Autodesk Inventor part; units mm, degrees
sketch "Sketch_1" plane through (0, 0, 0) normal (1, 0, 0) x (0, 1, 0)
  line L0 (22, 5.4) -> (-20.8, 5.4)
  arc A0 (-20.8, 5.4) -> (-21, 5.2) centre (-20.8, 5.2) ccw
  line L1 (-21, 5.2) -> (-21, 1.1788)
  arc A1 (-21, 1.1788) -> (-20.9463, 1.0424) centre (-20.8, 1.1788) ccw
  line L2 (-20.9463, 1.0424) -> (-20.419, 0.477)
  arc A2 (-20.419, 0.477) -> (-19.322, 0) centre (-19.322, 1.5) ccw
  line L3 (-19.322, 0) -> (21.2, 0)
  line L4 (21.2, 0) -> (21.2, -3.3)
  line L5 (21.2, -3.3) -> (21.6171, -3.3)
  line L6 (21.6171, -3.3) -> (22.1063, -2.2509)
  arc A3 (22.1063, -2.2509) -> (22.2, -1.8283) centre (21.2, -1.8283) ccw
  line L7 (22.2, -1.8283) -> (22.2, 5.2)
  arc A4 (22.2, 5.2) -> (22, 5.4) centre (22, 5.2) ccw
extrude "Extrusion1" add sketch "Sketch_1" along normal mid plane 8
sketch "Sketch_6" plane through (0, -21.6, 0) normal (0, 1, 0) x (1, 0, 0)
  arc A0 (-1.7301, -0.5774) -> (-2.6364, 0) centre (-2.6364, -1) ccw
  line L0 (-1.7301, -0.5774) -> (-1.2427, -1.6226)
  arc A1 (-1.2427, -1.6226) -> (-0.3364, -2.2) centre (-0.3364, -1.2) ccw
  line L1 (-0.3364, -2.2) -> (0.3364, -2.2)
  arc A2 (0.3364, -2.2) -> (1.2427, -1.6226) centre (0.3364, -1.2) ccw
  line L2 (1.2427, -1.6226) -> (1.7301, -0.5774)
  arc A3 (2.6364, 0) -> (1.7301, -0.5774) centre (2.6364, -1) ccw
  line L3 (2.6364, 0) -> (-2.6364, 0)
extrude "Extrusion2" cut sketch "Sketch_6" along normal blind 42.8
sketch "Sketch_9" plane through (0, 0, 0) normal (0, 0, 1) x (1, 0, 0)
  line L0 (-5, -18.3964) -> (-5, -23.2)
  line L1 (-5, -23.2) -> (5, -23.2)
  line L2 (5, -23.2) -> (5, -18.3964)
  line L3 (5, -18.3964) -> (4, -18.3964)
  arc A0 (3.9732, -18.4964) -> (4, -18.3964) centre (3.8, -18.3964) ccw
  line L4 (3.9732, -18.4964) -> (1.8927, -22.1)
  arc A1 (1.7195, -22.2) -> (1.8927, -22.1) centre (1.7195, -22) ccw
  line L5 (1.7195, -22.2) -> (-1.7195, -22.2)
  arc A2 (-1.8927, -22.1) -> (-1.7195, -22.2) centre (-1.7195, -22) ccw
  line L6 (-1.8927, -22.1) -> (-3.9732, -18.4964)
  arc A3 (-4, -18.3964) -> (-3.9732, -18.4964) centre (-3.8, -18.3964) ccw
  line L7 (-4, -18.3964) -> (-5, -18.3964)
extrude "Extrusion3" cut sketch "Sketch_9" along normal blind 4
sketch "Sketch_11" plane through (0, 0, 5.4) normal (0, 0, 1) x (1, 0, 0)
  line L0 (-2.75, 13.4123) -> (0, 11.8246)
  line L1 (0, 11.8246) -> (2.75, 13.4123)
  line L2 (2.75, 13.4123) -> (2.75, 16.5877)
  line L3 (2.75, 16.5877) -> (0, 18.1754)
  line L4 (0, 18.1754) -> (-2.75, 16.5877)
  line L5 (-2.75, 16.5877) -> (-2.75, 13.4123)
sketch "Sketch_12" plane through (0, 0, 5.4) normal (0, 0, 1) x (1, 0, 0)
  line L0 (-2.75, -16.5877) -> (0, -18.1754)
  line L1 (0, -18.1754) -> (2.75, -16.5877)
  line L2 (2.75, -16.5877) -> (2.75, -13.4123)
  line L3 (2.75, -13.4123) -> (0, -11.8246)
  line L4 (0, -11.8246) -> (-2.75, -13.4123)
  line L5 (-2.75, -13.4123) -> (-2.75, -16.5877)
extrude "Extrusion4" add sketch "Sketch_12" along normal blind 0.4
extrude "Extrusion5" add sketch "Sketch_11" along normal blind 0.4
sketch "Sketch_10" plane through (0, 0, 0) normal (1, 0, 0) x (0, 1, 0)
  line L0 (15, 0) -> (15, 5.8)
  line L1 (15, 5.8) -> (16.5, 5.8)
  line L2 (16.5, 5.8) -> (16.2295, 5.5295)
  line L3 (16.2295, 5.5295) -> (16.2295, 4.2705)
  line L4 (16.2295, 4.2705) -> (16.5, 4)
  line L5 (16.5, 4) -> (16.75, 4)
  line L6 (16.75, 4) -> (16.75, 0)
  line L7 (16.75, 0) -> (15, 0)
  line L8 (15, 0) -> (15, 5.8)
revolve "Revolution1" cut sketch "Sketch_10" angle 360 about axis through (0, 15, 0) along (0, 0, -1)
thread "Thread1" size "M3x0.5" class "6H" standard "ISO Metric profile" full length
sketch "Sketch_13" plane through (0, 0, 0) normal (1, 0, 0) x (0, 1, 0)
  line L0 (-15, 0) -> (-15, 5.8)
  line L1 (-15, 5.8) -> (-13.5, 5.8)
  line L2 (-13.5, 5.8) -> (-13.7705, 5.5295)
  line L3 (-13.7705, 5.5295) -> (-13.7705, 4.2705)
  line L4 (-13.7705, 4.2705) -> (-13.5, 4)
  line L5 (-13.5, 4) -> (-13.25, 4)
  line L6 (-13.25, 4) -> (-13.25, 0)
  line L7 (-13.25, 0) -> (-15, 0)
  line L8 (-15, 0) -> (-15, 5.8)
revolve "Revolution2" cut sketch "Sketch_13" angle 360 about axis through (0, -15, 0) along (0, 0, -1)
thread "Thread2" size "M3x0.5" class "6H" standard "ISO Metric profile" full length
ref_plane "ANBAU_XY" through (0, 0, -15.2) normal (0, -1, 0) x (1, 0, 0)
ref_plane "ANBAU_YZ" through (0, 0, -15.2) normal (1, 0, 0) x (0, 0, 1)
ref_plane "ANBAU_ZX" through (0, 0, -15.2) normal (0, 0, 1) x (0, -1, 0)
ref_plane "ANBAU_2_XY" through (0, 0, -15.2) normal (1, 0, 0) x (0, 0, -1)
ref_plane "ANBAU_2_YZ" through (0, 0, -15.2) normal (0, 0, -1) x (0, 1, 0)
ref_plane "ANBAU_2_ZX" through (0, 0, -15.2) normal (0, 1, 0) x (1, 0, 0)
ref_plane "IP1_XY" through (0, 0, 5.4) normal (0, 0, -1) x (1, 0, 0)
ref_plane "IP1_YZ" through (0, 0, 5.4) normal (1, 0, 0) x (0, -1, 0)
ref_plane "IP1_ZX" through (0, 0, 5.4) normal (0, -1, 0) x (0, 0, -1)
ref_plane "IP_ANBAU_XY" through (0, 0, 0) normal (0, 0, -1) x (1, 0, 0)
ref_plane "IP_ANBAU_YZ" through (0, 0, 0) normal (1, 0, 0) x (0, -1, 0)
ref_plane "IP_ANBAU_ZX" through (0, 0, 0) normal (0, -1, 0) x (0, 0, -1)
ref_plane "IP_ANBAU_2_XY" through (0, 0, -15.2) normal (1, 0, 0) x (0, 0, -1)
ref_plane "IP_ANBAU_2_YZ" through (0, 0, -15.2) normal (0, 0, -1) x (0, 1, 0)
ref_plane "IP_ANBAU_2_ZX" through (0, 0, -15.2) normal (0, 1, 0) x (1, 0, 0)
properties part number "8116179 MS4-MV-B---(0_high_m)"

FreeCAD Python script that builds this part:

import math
import FreeCAD as App
import Part
import Sketcher

V = App.Vector
Q = App.Units.Quantity

doc = App.newDocument("Part")
body = doc.addObject("PartDesign::Body", "Body")

sketch1 = body.newObject("Sketcher::SketchObject", "Sketch")
sketch1.AttachmentSupport = (doc.getObject("YZ_Plane"), [""])
sketch1.MapMode = "FlatFace"
sketch1.addGeometry(Part.ArcOfCircle(Part.Circle(V(22, 5.2, 0), V(0, 0, 1), 0.2), math.radians(0), math.radians(90)), False)
sketch1.addGeometry(Part.LineSegment(V(22, 5.4, 0), V(-20.8, 5.4, 0)), False)
sketch1.addGeometry(Part.ArcOfCircle(Part.Circle(V(-20.8, 5.2, 0), V(0, 0, 1), 0.2), math.radians(90), math.radians(180)), False)
sketch1.addGeometry(Part.LineSegment(V(-21, 5.2, 0), V(-21, 1.18, 0)), False)
sketch1.addGeometry(Part.ArcOfCircle(Part.Circle(V(-20.8, 1.18, 0), V(0, 0, 1), 0.2), math.radians(180), math.radians(223)), False)
sketch1.addGeometry(Part.LineSegment(V(-20.95, 1.04, 0), V(-20.42, 0.48, 0)), False)
sketch1.addGeometry(Part.ArcOfCircle(Part.Circle(V(-19.32, 1.5, 0), V(0, 0, 1), 1.5), math.radians(-137), math.radians(-90)), False)
sketch1.addGeometry(Part.LineSegment(V(-19.32, 0, 0), V(21.2, 0, 0)), False)
sketch1.addGeometry(Part.LineSegment(V(21.2, 0, 0), V(21.2, -3.3, 0)), False)
sketch1.addGeometry(Part.LineSegment(V(21.2, -3.3, 0), V(21.62, -3.3, 0)), False)
sketch1.addGeometry(Part.LineSegment(V(21.62, -3.3, 0), V(22.11, -2.25, 0)), False)
sketch1.addGeometry(Part.ArcOfCircle(Part.Circle(V(21.2, -1.83, 0), V(0, 0, 1), 1), math.radians(-25), math.radians(0)), False)
sketch1.addGeometry(Part.LineSegment(V(22.2, -1.83, 0), V(22.2, 5.2, 0)), False)
sketch1.addConstraint(Sketcher.Constraint("Tangent", 0, 2, 1, 1))
sketch1.addConstraint(Sketcher.Constraint("Tangent", 1, 2, 2, 1))
sketch1.addConstraint(Sketcher.Constraint("Tangent", 2, 2, 3, 1))
sketch1.addConstraint(Sketcher.Constraint("Tangent", 3, 2, 4, 1))
sketch1.addConstraint(Sketcher.Constraint("Tangent", 4, 2, 5, 1))
sketch1.addConstraint(Sketcher.Constraint("Tangent", 5, 2, 6, 1))
sketch1.addConstraint(Sketcher.Constraint("Tangent", 6, 2, 7, 1))
sketch1.addConstraint(Sketcher.Constraint("Coincident", 7, 2, 8, 1))
sketch1.addConstraint(Sketcher.Constraint("Coincident", 8, 2, 9, 1))
sketch1.addConstraint(Sketcher.Constraint("Coincident", 9, 2, 10, 1))
sketch1.addConstraint(Sketcher.Constraint("Tangent", 10, 2, 11, 1))
sketch1.addConstraint(Sketcher.Constraint("Tangent", 11, 2, 12, 1))
sketch1.addConstraint(Sketcher.Constraint("Tangent", 12, 2, 0, 1))
sketch1.addConstraint(Sketcher.Constraint("Horizontal", 1))
sketch1.addConstraint(Sketcher.Constraint("Vertical", 3))
sketch1.addConstraint(Sketcher.Constraint("Horizontal", 7))
sketch1.addConstraint(Sketcher.Constraint("Vertical", 8))
sketch1.addConstraint(Sketcher.Constraint("Horizontal", 9))
sketch1.addConstraint(Sketcher.Constraint("Vertical", 12))
sketch1.addConstraint(Sketcher.Constraint("Equal", 0, 2))
sketch1.addConstraint(Sketcher.Constraint("Equal", 2, 4))
sketch1.addConstraint(Sketcher.Constraint("PointOnObject", 6, 2, -1))
sketch1.addConstraint(Sketcher.Constraint("Vertical", 11, 3, 7, 2))
sketch1.addConstraint(Sketcher.Constraint("Radius", 11, 1.0))
sketch1.addConstraint(Sketcher.Constraint("Radius", 0, 0.2))
sketch1.addConstraint(Sketcher.Constraint("Radius", 6, 1.5))
sketch1.addConstraint(Sketcher.Constraint("Angle", 10, Q("65.0002 deg")))
sketch1.addConstraint(Sketcher.Constraint("DistanceX", 1, 2, 1, 1, 42.8))
sketch1.addConstraint(Sketcher.Constraint("DistanceY", 8, 2, 8, 1, 3.3))
sketch1.addConstraint(Sketcher.Constraint("DistanceX", -1, 1, 0, 3, 22.0))
sketch1.addConstraint(Sketcher.Constraint("DistanceY", -1, 1, 0, 3, 5.2))
sketch1.addConstraint(Sketcher.Constraint("DistanceX", 7, 1, 7, 2, 40.522))
sketch1.addConstraint(Sketcher.Constraint("DistanceX", 9, 1, 9, 2, 0.417))
sketch1.addConstraint(Sketcher.Constraint("DistanceY", 3, 2, 3, 1, 4.0212))
pad1 = body.newObject("PartDesign::Pad", "Pad")
pad1.Profile = sketch1
pad1.Length = 8
pad1.Midplane = True

sketch2 = body.newObject("Sketcher::SketchObject", "Sketch001")
sketch2.AttachmentSupport = (doc.getObject("XZ_Plane"), [""])
sketch2.MapMode = "FlatFace"
sketch2.AttachmentOffset = App.Placement(V(0, 0, 21.6), App.Rotation())
sketch2.addGeometry(Part.ArcOfCircle(Part.Circle(V(-2.6, 1, 0), V(0, 0, 1), 1), math.radians(-90), math.radians(-25)), False)
sketch2.addGeometry(Part.LineSegment(V(-1.7, 0.6, 0), V(-1.2, 1.6, 0)), False)
sketch2.addGeometry(Part.ArcOfCircle(Part.Circle(V(-0.3, 1.2, 0), V(0, 0, 1), 1), math.radians(90), math.radians(155)), False)
sketch2.addGeometry(Part.LineSegment(V(-0.3, 2.2, 0), V(0.3, 2.2, 0)), False)
sketch2.addGeometry(Part.ArcOfCircle(Part.Circle(V(0.3, 1.2, 0), V(0, 0, 1), 1), math.radians(25), math.radians(90)), False)
sketch2.addGeometry(Part.LineSegment(V(1.2, 1.6, 0), V(1.7, 0.6, 0)), False)
sketch2.addGeometry(Part.ArcOfCircle(Part.Circle(V(2.6, 1, 0), V(0, 0, 1), 1), math.radians(-155), math.radians(-90)), False)
sketch2.addGeometry(Part.LineSegment(V(2.6, 0, 0), V(-2.6, 0, 0)), False)
sketch2.addConstraint(Sketcher.Constraint("Tangent", 0, 2, 1, 1))
sketch2.addConstraint(Sketcher.Constraint("Tangent", 1, 2, 2, 2))
sketch2.addConstraint(Sketcher.Constraint("Tangent", 2, 1, 3, 1))
sketch2.addConstraint(Sketcher.Constraint("Tangent", 3, 2, 4, 2))
sketch2.addConstraint(Sketcher.Constraint("Tangent", 4, 1, 5, 1))
sketch2.addConstraint(Sketcher.Constraint("Tangent", 5, 2, 6, 1))
sketch2.addConstraint(Sketcher.Constraint("Tangent", 6, 2, 7, 1))
sketch2.addConstraint(Sketcher.Constraint("Tangent", 7, 2, 0, 1))
sketch2.addConstraint(Sketcher.Constraint("Horizontal", 3))
sketch2.addConstraint(Sketcher.Constraint("Horizontal", 7))
sketch2.addConstraint(Sketcher.Constraint("Equal", 0, 2))
sketch2.addConstraint(Sketcher.Constraint("Equal", 2, 4))
sketch2.addConstraint(Sketcher.Constraint("Equal", 4, 6))
sketch2.addConstraint(Sketcher.Constraint("Symmetric", 6, 2, 7, 2, -1, 1))
sketch2.addConstraint(Sketcher.Constraint("Horizontal", 1, 2, 4, 1))
sketch2.addConstraint(Sketcher.Constraint("Radius", 0, 1.0))
sketch2.addConstraint(Sketcher.Constraint("Angle", 1, Q("64.9993 deg")))
sketch2.addConstraint(Sketcher.Constraint("DistanceY", -1, 1, 2, 3, 1.2))
sketch2.addConstraint(Sketcher.Constraint("DistanceX", 0, 2, -1, 1, 1.73))
pocket1 = body.newObject("PartDesign::Pocket", "Pocket")
pocket1.Profile = sketch2
pocket1.Length = 42.8

sketch3 = body.newObject("Sketcher::SketchObject", "Sketch002")
sketch3.AttachmentSupport = (doc.getObject("XY_Plane"), [""])
sketch3.MapMode = "FlatFace"
sketch3.addGeometry(Part.LineSegment(V(-4, -18.4, 0), V(-5, -18.4, 0)), False)
sketch3.addGeometry(Part.LineSegment(V(-5, -18.4, 0), V(-5, -23.2, 0)), False)
sketch3.addGeometry(Part.LineSegment(V(-5, -23.2, 0), V(5, -23.2, 0)), False)
sketch3.addGeometry(Part.LineSegment(V(5, -23.2, 0), V(5, -18.4, 0)), False)
sketch3.addGeometry(Part.LineSegment(V(5, -18.4, 0), V(4, -18.4, 0)), False)
sketch3.addGeometry(Part.ArcOfCircle(Part.Circle(V(3.8, -18.4, 0), V(0, 0, 1), 0.2), math.radians(-30), math.radians(0)), False)
sketch3.addGeometry(Part.LineSegment(V(3.97, -18.5, 0), V(1.89, -22.1, 0)), False)
sketch3.addGeometry(Part.ArcOfCircle(Part.Circle(V(1.72, -22, 0), V(0, 0, 1), 0.2), math.radians(-90), math.radians(-30)), False)
sketch3.addGeometry(Part.LineSegment(V(1.72, -22.2, 0), V(-1.72, -22.2, 0)), False)
sketch3.addGeometry(Part.ArcOfCircle(Part.Circle(V(-1.72, -22, 0), V(0, 0, 1), 0.2), math.radians(-150), math.radians(-90)), False)
sketch3.addGeometry(Part.LineSegment(V(-1.89, -22.1, 0), V(-3.97, -18.5, 0)), False)
sketch3.addGeometry(Part.ArcOfCircle(Part.Circle(V(-3.8, -18.4, 0), V(0, 0, 1), 0.2), math.radians(180), math.radians(210)), False)
sketch3.addConstraint(Sketcher.Constraint("Coincident", 0, 2, 1, 1))
sketch3.addConstraint(Sketcher.Constraint("Coincident", 1, 2, 2, 1))
sketch3.addConstraint(Sketcher.Constraint("Coincident", 2, 2, 3, 1))
sketch3.addConstraint(Sketcher.Constraint("Coincident", 3, 2, 4, 1))
sketch3.addConstraint(Sketcher.Constraint("Coincident", 4, 2, 5, 2))
sketch3.addConstraint(Sketcher.Constraint("Tangent", 5, 1, 6, 1))
sketch3.addConstraint(Sketcher.Constraint("Tangent", 6, 2, 7, 2))
sketch3.addConstraint(Sketcher.Constraint("Tangent", 7, 1, 8, 1))
sketch3.addConstraint(Sketcher.Constraint("Tangent", 8, 2, 9, 2))
sketch3.addConstraint(Sketcher.Constraint("Tangent", 9, 1, 10, 1))
sketch3.addConstraint(Sketcher.Constraint("Tangent", 10, 2, 11, 2))
sketch3.addConstraint(Sketcher.Constraint("Coincident", 11, 1, 0, 1))
sketch3.addConstraint(Sketcher.Constraint("Horizontal", 0))
sketch3.addConstraint(Sketcher.Constraint("Vertical", 1))
sketch3.addConstraint(Sketcher.Constraint("Horizontal", 2))
sketch3.addConstraint(Sketcher.Constraint("Vertical", 3))
sketch3.addConstraint(Sketcher.Constraint("Horizontal", 4))
sketch3.addConstraint(Sketcher.Constraint("Horizontal", 8))
sketch3.addConstraint(Sketcher.Constraint("Equal", 5, 7))
sketch3.addConstraint(Sketcher.Constraint("Equal", 7, 9))
sketch3.addConstraint(Sketcher.Constraint("Equal", 9, 11))
sketch3.addConstraint(Sketcher.Constraint("Symmetric", 5, 3, 11, 3, -2))
sketch3.addConstraint(Sketcher.Constraint("Symmetric", 0, 2, 3, 2, -2))
sketch3.addConstraint(Sketcher.Constraint("Horizontal", 11, 3, 0, 2))
sketch3.addConstraint(Sketcher.Constraint("Horizontal", 6, 2, 9, 1))
sketch3.addConstraint(Sketcher.Constraint("Radius", 5, 0.2))
sketch3.addConstraint(Sketcher.Constraint("DistanceX", 0, 2, 0, 1, 1.0))
sketch3.addConstraint(Sketcher.Constraint("DistanceX", 2, 1, 2, 2, 10.0))
sketch3.addConstraint(Sketcher.Constraint("Angle", 6, Q("-119.9995 deg")))
sketch3.addConstraint(Sketcher.Constraint("DistanceY", 7, 3, -1, 1, 22.0))
sketch3.addConstraint(Sketcher.Constraint("DistanceY", 2, 2, 7, 1, 1.0))
sketch3.addConstraint(Sketcher.Constraint("DistanceX", 8, 2, 8, 1, 3.439))
pocket2 = body.newObject("PartDesign::Pocket", "Pocket001")
pocket2.Profile = sketch3
pocket2.Length = 4
pocket2.Reversed = True

sketch4 = body.newObject("Sketcher::SketchObject", "Sketch003")
sketch4.AttachmentSupport = (doc.getObject("XY_Plane"), [""])
sketch4.MapMode = "FlatFace"
sketch4.AttachmentOffset = App.Placement(V(0, 0, 5.4), App.Rotation())
sketch4.addGeometry(Part.LineSegment(V(-2.8, -13.4, 0), V(-2.8, -16.6, 0)), False)
sketch4.addGeometry(Part.LineSegment(V(-2.8, -16.6, 0), V(0, -18.2, 0)), False)
sketch4.addGeometry(Part.LineSegment(V(0, -18.2, 0), V(2.8, -16.6, 0)), False)
sketch4.addGeometry(Part.LineSegment(V(2.8, -16.6, 0), V(2.8, -13.4, 0)), False)
sketch4.addGeometry(Part.LineSegment(V(2.8, -13.4, 0), V(0, -11.8, 0)), False)
sketch4.addGeometry(Part.LineSegment(V(0, -11.8, 0), V(-2.8, -13.4, 0)), False)
sketch4.addConstraint(Sketcher.Constraint("Coincident", 0, 2, 1, 1))
sketch4.addConstraint(Sketcher.Constraint("Coincident", 1, 2, 2, 1))
sketch4.addConstraint(Sketcher.Constraint("Coincident", 2, 2, 3, 1))
sketch4.addConstraint(Sketcher.Constraint("Coincident", 3, 2, 4, 1))
sketch4.addConstraint(Sketcher.Constraint("Coincident", 4, 2, 5, 1))
sketch4.addConstraint(Sketcher.Constraint("Coincident", 5, 2, 0, 1))
sketch4.addConstraint(Sketcher.Constraint("Vertical", 0))
sketch4.addConstraint(Sketcher.Constraint("Vertical", 3))
sketch4.addConstraint(Sketcher.Constraint("Symmetric", 0, 2, 2, 2, -2))
sketch4.addConstraint(Sketcher.Constraint("PointOnObject", 1, 2, -2))
sketch4.addConstraint(Sketcher.Constraint("PointOnObject", 4, 2, -2))
sketch4.addConstraint(Sketcher.Constraint("Parallel", 1, 4))
sketch4.addConstraint(Sketcher.Constraint("Parallel", 2, 5))
sketch4.addConstraint(Sketcher.Constraint("Angle", 1, Q("-29.9998 deg")))
sketch4.addConstraint(Sketcher.Constraint("DistanceX", 0, 2, 2, 2, 5.5))
sketch4.addConstraint(Sketcher.Constraint("DistanceY", 0, 2, 0, 1, 3.1754))
sketch4.addConstraint(Sketcher.Constraint("DistanceY", 0, 2, -1, 1, 16.5877))
pad2 = body.newObject("PartDesign::Pad", "Pad001")
pad2.Profile = sketch4
pad2.Length = 0.4

sketch5 = body.newObject("Sketcher::SketchObject", "Sketch004")
sketch5.AttachmentSupport = (doc.getObject("XY_Plane"), [""])
sketch5.MapMode = "FlatFace"
sketch5.AttachmentOffset = App.Placement(V(0, 0, 5.4), App.Rotation())
sketch5.addGeometry(Part.LineSegment(V(-2.8, 16.6, 0), V(-2.8, 13.4, 0)), False)
sketch5.addGeometry(Part.LineSegment(V(-2.8, 13.4, 0), V(0, 11.8, 0)), False)
sketch5.addGeometry(Part.LineSegment(V(0, 11.8, 0), V(2.8, 13.4, 0)), False)
sketch5.addGeometry(Part.LineSegment(V(2.8, 13.4, 0), V(2.8, 16.6, 0)), False)
sketch5.addGeometry(Part.LineSegment(V(2.8, 16.6, 0), V(0, 18.2, 0)), False)
sketch5.addGeometry(Part.LineSegment(V(0, 18.2, 0), V(-2.8, 16.6, 0)), False)
sketch5.addConstraint(Sketcher.Constraint("Coincident", 0, 2, 1, 1))
sketch5.addConstraint(Sketcher.Constraint("Coincident", 1, 2, 2, 1))
sketch5.addConstraint(Sketcher.Constraint("Coincident", 2, 2, 3, 1))
sketch5.addConstraint(Sketcher.Constraint("Coincident", 3, 2, 4, 1))
sketch5.addConstraint(Sketcher.Constraint("Coincident", 4, 2, 5, 1))
sketch5.addConstraint(Sketcher.Constraint("Coincident", 5, 2, 0, 1))
sketch5.addConstraint(Sketcher.Constraint("Vertical", 0))
sketch5.addConstraint(Sketcher.Constraint("Vertical", 3))
sketch5.addConstraint(Sketcher.Constraint("Symmetric", 0, 2, 2, 2, -2))
sketch5.addConstraint(Sketcher.Constraint("PointOnObject", 1, 2, -2))
sketch5.addConstraint(Sketcher.Constraint("PointOnObject", 4, 2, -2))
sketch5.addConstraint(Sketcher.Constraint("Parallel", 1, 4))
sketch5.addConstraint(Sketcher.Constraint("Parallel", 2, 5))
sketch5.addConstraint(Sketcher.Constraint("Angle", 1, Q("-29.9998 deg")))
sketch5.addConstraint(Sketcher.Constraint("DistanceX", 0, 2, 2, 2, 5.5))
sketch5.addConstraint(Sketcher.Constraint("DistanceY", 0, 2, 0, 1, 3.1754))
sketch5.addConstraint(Sketcher.Constraint("DistanceY", -1, 1, 0, 2, 13.4123))
pad3 = body.newObject("PartDesign::Pad", "Pad002")
pad3.Profile = sketch5
pad3.Length = 0.4

sketch6 = body.newObject("Sketcher::SketchObject", "Sketch005")
sketch6.AttachmentSupport = (doc.getObject("YZ_Plane"), [""])
sketch6.MapMode = "FlatFace"
sketch6.addGeometry(Part.LineSegment(V(15, 5.8, 0), V(15, 0, 0)), False)
sketch6.addGeometry(Part.LineSegment(V(15, 0, 0), V(16.75, 0, 0)), False)
sketch6.addGeometry(Part.LineSegment(V(16.75, 0, 0), V(16.75, 4, 0)), False)
sketch6.addGeometry(Part.LineSegment(V(16.75, 4, 0), V(16.5, 4, 0)), False)
sketch6.addGeometry(Part.LineSegment(V(16.5, 4, 0), V(16.23, 4.27, 0)), False)
sketch6.addGeometry(Part.LineSegment(V(16.23, 4.27, 0), V(16.23, 5.53, 0)), False)
sketch6.addGeometry(Part.LineSegment(V(16.23, 5.53, 0), V(16.5, 5.8, 0)), False)
sketch6.addGeometry(Part.LineSegment(V(16.5, 5.8, 0), V(15, 5.8, 0)), False)
sketch6.addGeometry(Part.LineSegment(V(15, 5.8, 0), V(15, 0, 0)), True)
sketch6.addConstraint(Sketcher.Constraint("Coincident", 0, 2, 1, 1))
sketch6.addConstraint(Sketcher.Constraint("Coincident", 1, 2, 2, 1))
sketch6.addConstraint(Sketcher.Constraint("Coincident", 2, 2, 3, 1))
sketch6.addConstraint(Sketcher.Constraint("Coincident", 3, 2, 4, 1))
sketch6.addConstraint(Sketcher.Constraint("Coincident", 4, 2, 5, 1))
sketch6.addConstraint(Sketcher.Constraint("Coincident", 5, 2, 6, 1))
sketch6.addConstraint(Sketcher.Constraint("Coincident", 6, 2, 7, 1))
sketch6.addConstraint(Sketcher.Constraint("Coincident", 7, 2, 0, 1))
sketch6.addConstraint(Sketcher.Constraint("Vertical", 0))
sketch6.addConstraint(Sketcher.Constraint("Horizontal", 1))
sketch6.addConstraint(Sketcher.Constraint("Vertical", 2))
sketch6.addConstraint(Sketcher.Constraint("Horizontal", 3))
sketch6.addConstraint(Sketcher.Constraint("Vertical", 5))
sketch6.addConstraint(Sketcher.Constraint("Horizontal", 7))
sketch6.addConstraint(Sketcher.Constraint("Vertical", 8))
sketch6.addConstraint(Sketcher.Constraint("Coincident", 8, 1, 7, 2))
sketch6.addConstraint(Sketcher.Constraint("PointOnObject", 0, 2, -1))
sketch6.addConstraint(Sketcher.Constraint("PointOnObject", 8, 2, -1))
sketch6.addConstraint(Sketcher.Constraint("Perpendicular", 4, 6))
sketch6.addConstraint(Sketcher.Constraint("Vertical", 3, 2, 6, 2))
sketch6.addConstraint(Sketcher.Constraint("Equal", 4, 6))
sketch6.addConstraint(Sketcher.Constraint("DistanceY", 2, 1, 2, 2, 4.0))
sketch6.addConstraint(Sketcher.Constraint("DistanceX", 7, 2, 7, 1, 1.5))
sketch6.addConstraint(Sketcher.Constraint("DistanceY", 0, 2, 0, 1, 5.8))
sketch6.addConstraint(Sketcher.Constraint("DistanceX", -1, 1, 0, 2, 15.0))
sketch6.addConstraint(Sketcher.Constraint("DistanceX", 1, 1, 1, 2, 1.75))
sketch6.addConstraint(Sketcher.Constraint("DistanceY", 5, 1, 5, 2, 1.259))
groove = body.newObject("PartDesign::Groove", "Groove")
groove.Profile = sketch6
groove.ReferenceAxis = (sketch6, ["Axis0"])
groove.Angle = 360

sketch7 = body.newObject("Sketcher::SketchObject", "Sketch006")
sketch7.AttachmentSupport = (doc.getObject("YZ_Plane"), [""])
sketch7.MapMode = "FlatFace"
sketch7.addGeometry(Part.LineSegment(V(-15, 5.8, 0), V(-15, 0, 0)), False)
sketch7.addGeometry(Part.LineSegment(V(-15, 0, 0), V(-13.25, 0, 0)), False)
sketch7.addGeometry(Part.LineSegment(V(-13.25, 0, 0), V(-13.25, 4, 0)), False)
sketch7.addGeometry(Part.LineSegment(V(-13.25, 4, 0), V(-13.5, 4, 0)), False)
sketch7.addGeometry(Part.LineSegment(V(-13.5, 4, 0), V(-13.77, 4.27, 0)), False)
sketch7.addGeometry(Part.LineSegment(V(-13.77, 4.27, 0), V(-13.77, 5.53, 0)), False)
sketch7.addGeometry(Part.LineSegment(V(-13.77, 5.53, 0), V(-13.5, 5.8, 0)), False)
sketch7.addGeometry(Part.LineSegment(V(-13.5, 5.8, 0), V(-15, 5.8, 0)), False)
sketch7.addGeometry(Part.LineSegment(V(-15, 5.8, 0), V(-15, 0, 0)), True)
sketch7.addConstraint(Sketcher.Constraint("Coincident", 0, 2, 1, 1))
sketch7.addConstraint(Sketcher.Constraint("Coincident", 1, 2, 2, 1))
sketch7.addConstraint(Sketcher.Constraint("Coincident", 2, 2, 3, 1))
sketch7.addConstraint(Sketcher.Constraint("Coincident", 3, 2, 4, 1))
sketch7.addConstraint(Sketcher.Constraint("Coincident", 4, 2, 5, 1))
sketch7.addConstraint(Sketcher.Constraint("Coincident", 5, 2, 6, 1))
sketch7.addConstraint(Sketcher.Constraint("Coincident", 6, 2, 7, 1))
sketch7.addConstraint(Sketcher.Constraint("Coincident", 7, 2, 0, 1))
sketch7.addConstraint(Sketcher.Constraint("Vertical", 0))
sketch7.addConstraint(Sketcher.Constraint("Horizontal", 1))
sketch7.addConstraint(Sketcher.Constraint("Vertical", 2))
sketch7.addConstraint(Sketcher.Constraint("Horizontal", 3))
sketch7.addConstraint(Sketcher.Constraint("Vertical", 5))
sketch7.addConstraint(Sketcher.Constraint("Horizontal", 7))
sketch7.addConstraint(Sketcher.Constraint("Vertical", 8))
sketch7.addConstraint(Sketcher.Constraint("Coincident", 8, 1, 7, 2))
sketch7.addConstraint(Sketcher.Constraint("PointOnObject", 0, 2, -1))
sketch7.addConstraint(Sketcher.Constraint("PointOnObject", 8, 2, -1))
sketch7.addConstraint(Sketcher.Constraint("Perpendicular", 4, 6))
sketch7.addConstraint(Sketcher.Constraint("Vertical", 3, 2, 6, 2))
sketch7.addConstraint(Sketcher.Constraint("Equal", 4, 6))
sketch7.addConstraint(Sketcher.Constraint("DistanceY", 2, 1, 2, 2, 4.0))
sketch7.addConstraint(Sketcher.Constraint("DistanceX", 7, 2, 7, 1, 1.5))
sketch7.addConstraint(Sketcher.Constraint("DistanceY", 0, 2, 0, 1, 5.8))
sketch7.addConstraint(Sketcher.Constraint("DistanceX", 0, 2, -1, 1, 15.0))
sketch7.addConstraint(Sketcher.Constraint("DistanceX", 1, 1, 1, 2, 1.75))
sketch7.addConstraint(Sketcher.Constraint("DistanceY", 5, 1, 5, 2, 1.259))
groove2 = body.newObject("PartDesign::Groove", "Groove001")
groove2.Profile = sketch7
groove2.ReferenceAxis = (sketch7, ["Axis0"])
groove2.Angle = 360

doc.recompute()
